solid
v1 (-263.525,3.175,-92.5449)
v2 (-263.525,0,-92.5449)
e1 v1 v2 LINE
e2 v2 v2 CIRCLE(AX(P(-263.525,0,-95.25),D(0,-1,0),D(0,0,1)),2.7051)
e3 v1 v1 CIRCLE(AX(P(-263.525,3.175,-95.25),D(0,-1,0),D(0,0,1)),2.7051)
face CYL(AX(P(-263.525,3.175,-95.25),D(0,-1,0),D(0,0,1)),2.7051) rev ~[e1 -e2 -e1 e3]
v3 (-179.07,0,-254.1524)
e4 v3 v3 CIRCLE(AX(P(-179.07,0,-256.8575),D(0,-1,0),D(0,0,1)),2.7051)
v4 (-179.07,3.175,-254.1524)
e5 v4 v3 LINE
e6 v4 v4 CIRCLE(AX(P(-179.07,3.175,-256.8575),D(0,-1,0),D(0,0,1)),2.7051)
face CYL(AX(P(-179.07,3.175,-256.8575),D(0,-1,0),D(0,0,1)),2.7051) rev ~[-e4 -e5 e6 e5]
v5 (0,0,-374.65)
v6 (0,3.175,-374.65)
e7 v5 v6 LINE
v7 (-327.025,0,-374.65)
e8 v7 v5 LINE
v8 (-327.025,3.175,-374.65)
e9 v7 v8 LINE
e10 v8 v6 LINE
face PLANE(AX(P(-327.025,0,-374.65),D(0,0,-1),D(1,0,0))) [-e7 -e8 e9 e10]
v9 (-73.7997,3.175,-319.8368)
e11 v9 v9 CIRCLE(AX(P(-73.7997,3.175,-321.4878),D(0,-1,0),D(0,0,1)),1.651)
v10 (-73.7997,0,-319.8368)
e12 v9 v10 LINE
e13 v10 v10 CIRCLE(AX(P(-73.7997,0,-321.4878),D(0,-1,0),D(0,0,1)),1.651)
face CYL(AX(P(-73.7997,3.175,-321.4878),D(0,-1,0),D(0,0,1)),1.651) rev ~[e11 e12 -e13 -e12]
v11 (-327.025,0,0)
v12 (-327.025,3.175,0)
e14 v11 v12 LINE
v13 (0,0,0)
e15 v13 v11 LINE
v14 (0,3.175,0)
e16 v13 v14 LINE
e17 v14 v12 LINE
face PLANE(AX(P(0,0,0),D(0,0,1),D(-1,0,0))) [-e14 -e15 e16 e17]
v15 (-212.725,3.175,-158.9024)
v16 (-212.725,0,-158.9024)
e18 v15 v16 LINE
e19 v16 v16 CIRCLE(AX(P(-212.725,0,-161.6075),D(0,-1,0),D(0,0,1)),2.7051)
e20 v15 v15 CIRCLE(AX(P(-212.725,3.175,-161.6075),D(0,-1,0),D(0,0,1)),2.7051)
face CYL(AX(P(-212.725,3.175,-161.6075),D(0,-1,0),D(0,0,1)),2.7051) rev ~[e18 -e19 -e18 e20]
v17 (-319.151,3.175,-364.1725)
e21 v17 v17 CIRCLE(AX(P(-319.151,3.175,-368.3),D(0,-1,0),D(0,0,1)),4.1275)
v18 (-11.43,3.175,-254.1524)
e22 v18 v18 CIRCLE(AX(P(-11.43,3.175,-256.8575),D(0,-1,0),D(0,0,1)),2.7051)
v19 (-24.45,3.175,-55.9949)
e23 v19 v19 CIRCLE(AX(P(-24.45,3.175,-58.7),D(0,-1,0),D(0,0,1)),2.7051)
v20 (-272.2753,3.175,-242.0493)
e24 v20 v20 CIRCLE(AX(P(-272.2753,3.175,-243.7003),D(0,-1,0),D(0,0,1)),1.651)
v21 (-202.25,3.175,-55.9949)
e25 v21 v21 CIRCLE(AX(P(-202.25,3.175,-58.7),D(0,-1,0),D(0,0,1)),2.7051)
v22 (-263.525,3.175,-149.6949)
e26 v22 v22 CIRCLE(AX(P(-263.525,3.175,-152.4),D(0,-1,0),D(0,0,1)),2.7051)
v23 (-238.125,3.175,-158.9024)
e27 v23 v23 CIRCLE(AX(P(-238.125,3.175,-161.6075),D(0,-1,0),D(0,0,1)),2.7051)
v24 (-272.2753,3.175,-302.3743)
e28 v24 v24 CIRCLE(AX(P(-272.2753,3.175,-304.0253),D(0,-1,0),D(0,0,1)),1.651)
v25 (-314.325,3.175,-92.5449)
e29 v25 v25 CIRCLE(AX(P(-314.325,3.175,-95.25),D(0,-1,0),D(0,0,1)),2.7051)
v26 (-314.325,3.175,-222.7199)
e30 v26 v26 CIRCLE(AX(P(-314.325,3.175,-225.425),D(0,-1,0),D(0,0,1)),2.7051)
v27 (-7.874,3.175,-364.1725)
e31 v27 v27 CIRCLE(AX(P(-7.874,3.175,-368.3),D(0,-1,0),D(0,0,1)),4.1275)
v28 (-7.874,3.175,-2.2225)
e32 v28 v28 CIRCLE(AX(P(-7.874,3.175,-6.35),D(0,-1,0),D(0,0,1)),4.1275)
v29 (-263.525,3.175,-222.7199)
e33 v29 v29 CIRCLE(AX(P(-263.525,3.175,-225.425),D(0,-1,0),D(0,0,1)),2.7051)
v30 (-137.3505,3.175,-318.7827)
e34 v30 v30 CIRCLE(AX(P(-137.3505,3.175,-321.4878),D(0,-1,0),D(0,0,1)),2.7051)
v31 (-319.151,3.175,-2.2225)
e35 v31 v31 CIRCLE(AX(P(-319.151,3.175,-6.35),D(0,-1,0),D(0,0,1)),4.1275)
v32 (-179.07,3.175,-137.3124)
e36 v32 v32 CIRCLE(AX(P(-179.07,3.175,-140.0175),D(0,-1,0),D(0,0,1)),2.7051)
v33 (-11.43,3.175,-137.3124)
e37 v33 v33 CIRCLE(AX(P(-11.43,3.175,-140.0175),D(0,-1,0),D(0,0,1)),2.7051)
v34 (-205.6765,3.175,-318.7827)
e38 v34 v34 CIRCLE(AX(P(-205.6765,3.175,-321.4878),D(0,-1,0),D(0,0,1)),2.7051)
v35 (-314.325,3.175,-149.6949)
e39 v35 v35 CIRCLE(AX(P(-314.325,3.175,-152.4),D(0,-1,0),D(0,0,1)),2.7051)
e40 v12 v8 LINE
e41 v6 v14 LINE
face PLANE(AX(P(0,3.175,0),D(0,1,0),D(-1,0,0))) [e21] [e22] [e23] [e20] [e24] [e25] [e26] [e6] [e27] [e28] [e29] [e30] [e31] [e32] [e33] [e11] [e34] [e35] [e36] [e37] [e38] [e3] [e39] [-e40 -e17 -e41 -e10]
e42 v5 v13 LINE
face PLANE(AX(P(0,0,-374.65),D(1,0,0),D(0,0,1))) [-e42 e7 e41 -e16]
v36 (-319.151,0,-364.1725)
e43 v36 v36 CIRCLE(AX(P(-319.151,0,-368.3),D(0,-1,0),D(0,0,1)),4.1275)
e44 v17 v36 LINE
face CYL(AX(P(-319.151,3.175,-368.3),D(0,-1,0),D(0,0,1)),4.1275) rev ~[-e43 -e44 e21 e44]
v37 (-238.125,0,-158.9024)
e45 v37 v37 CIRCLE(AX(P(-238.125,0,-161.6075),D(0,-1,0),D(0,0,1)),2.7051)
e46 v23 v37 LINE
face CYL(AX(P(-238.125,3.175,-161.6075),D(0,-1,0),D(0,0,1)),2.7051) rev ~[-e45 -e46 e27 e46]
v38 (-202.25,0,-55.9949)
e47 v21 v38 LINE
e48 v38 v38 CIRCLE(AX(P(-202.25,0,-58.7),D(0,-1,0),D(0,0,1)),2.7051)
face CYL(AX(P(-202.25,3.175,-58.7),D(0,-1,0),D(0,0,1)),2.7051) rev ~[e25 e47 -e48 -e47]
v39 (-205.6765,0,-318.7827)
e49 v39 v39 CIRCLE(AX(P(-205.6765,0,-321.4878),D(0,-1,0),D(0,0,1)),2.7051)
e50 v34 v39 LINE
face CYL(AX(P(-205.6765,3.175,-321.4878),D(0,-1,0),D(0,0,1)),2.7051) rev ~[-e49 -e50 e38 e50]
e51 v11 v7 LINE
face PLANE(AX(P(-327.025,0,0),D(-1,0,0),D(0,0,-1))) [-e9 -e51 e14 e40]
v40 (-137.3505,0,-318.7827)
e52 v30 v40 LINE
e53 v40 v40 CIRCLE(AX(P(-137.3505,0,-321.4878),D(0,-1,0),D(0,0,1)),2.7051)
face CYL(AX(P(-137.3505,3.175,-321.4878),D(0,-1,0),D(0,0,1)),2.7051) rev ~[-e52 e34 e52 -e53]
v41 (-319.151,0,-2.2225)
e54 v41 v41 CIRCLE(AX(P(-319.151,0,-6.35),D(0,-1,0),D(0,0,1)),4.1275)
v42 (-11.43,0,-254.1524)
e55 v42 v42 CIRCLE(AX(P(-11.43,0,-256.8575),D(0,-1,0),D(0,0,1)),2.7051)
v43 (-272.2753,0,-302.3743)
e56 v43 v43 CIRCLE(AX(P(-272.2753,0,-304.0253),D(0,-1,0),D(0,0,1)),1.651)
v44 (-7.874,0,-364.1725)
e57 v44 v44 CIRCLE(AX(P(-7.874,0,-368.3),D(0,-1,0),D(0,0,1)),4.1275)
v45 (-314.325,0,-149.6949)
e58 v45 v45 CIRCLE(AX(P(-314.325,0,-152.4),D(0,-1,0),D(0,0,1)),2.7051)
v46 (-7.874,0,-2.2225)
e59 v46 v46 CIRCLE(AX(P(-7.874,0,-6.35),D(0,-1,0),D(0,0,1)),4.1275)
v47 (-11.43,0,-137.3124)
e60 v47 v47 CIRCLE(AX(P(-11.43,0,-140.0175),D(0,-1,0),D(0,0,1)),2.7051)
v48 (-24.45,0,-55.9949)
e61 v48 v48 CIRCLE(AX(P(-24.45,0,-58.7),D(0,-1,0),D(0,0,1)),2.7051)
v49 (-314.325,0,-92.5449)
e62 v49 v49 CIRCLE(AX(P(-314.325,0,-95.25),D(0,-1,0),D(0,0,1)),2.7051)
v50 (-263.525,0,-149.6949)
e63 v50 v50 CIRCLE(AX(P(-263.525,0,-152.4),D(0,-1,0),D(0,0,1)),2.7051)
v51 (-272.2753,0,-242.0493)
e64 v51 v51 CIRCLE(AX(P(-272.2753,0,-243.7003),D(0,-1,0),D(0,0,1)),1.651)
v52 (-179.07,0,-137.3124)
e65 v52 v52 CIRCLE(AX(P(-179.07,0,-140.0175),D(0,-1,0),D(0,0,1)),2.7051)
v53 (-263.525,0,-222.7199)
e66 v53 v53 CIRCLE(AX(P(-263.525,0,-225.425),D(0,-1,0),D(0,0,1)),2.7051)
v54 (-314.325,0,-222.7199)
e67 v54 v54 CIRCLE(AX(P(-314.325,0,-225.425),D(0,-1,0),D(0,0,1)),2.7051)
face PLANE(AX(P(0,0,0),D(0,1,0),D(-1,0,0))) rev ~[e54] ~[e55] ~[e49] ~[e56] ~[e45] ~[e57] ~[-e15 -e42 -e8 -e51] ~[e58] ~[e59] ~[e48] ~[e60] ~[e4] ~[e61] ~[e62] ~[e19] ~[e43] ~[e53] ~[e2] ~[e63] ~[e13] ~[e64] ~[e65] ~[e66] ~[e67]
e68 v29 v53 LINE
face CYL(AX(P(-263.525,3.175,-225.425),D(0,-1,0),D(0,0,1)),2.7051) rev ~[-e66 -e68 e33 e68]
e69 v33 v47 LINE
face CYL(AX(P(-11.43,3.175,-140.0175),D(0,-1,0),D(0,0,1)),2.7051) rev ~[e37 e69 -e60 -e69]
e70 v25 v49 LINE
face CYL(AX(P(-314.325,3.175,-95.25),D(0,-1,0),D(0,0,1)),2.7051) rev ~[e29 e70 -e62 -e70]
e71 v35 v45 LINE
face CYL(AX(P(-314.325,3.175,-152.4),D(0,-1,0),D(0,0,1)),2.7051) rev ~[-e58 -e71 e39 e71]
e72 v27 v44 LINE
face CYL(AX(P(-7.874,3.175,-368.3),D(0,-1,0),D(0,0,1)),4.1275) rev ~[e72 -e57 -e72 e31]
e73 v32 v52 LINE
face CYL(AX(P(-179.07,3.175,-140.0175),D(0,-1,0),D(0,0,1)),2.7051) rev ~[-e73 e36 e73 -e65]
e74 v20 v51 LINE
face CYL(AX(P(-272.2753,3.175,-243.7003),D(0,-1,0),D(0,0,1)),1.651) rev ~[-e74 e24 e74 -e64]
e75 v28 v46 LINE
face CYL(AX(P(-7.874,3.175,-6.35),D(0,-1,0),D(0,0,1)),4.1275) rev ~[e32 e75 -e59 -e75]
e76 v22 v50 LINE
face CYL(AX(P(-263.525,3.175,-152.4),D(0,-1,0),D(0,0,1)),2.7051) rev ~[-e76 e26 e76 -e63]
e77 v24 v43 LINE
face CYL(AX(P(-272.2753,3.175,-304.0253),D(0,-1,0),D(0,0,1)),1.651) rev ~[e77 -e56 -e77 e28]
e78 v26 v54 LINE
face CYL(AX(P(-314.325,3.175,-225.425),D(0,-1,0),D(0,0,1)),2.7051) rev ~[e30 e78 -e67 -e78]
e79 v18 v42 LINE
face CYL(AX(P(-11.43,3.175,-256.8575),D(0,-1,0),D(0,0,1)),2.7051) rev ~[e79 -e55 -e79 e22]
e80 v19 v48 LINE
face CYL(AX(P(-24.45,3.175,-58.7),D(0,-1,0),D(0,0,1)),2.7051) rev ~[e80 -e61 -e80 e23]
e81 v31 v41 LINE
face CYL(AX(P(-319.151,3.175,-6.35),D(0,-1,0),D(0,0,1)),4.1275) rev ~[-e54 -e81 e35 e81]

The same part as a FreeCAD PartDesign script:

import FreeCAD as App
import Part
import Sketcher
Q = App.Units.Quantity

doc = App.newDocument("Part")
body = doc.addObject("PartDesign::Body", "Body")

# Sketch on XZ plane
sketch1 = body.newObject("Sketcher::SketchObject", "Sketch")
sketch1.AttachmentSupport = (doc.getObject("XZ_Plane"), [""])
sketch1.MapMode = "FlatFace"
sketch1.addGeometry(Part.LineSegment(App.Vector(-327, 0, 0), App.Vector(0, 0, 0)), False)
sketch1.addGeometry(Part.LineSegment(App.Vector(0, 0, 0), App.Vector(0, -375, 0)), False)
sketch1.addGeometry(Part.LineSegment(App.Vector(0, -375, 0), App.Vector(-327, -375, 0)), False)
sketch1.addGeometry(Part.LineSegment(App.Vector(-327, -375, 0), App.Vector(-327, 0, 0)), False)
sketch1.addConstraint(Sketcher.Constraint("Coincident", 0, 2, 1, 1))
sketch1.addConstraint(Sketcher.Constraint("Coincident", 1, 2, 2, 1))
sketch1.addConstraint(Sketcher.Constraint("Coincident", 2, 2, 3, 1))
sketch1.addConstraint(Sketcher.Constraint("Coincident", 3, 2, 0, 1))
sketch1.addConstraint(Sketcher.Constraint("Horizontal", 0))
sketch1.addConstraint(Sketcher.Constraint("Vertical", 1))
sketch1.addConstraint(Sketcher.Constraint("Horizontal", 2))
sketch1.addConstraint(Sketcher.Constraint("Vertical", 3))
sketch1.addConstraint(Sketcher.Constraint("Coincident", 0, 2, -1, 1))
sketch1.addConstraint(Sketcher.Constraint("DistanceY", 1, 2, 1, 1, Q("14.75 in")))
sketch1.addConstraint(Sketcher.Constraint("DistanceX", 0, 1, 0, 2, Q("12.875 in")))
pad1 = body.newObject("PartDesign::Pad", "Pad")
pad1.Profile = sketch1
pad1.Length = Q("0.125 in")
pad1.Reversed = True

# Sketch on XZ plane
sketch2 = body.newObject("Sketcher::SketchObject", "Sketch001")
sketch2.AttachmentSupport = (doc.getObject("XZ_Plane"), [""])
sketch2.MapMode = "FlatFace"
sketch2.AttachmentOffset = App.Placement(App.Vector(0, 0, -0.125 * 25.4), App.Rotation())
sketch2.addGeometry(Part.Circle(App.Vector(-179.1, -256.9, 0), App.Vector(0, 0, 1), 2.7), False)
sketch2.addGeometry(Part.Circle(App.Vector(-11.4, -256.9, 0), App.Vector(0, 0, 1), 2.7), False)
sketch2.addGeometry(Part.Circle(App.Vector(-11.4, -140, 0), App.Vector(0, 0, 1), 2.7), False)
sketch2.addGeometry(Part.Circle(App.Vector(-179.1, -140, 0), App.Vector(0, 0, 1), 2.7), False)
sketch2.addConstraint(Sketcher.Constraint("Equal", 0, 1))
sketch2.addConstraint(Sketcher.Constraint("Equal", 1, 2))
sketch2.addConstraint(Sketcher.Constraint("Equal", 2, 3))
sketch2.addConstraint(Sketcher.Constraint("Horizontal", 0, 3, 1, 3))
sketch2.addConstraint(Sketcher.Constraint("Horizontal", 2, 3, 3, 3))
sketch2.addConstraint(Sketcher.Constraint("Vertical", 1, 3, 2, 3))
sketch2.addConstraint(Sketcher.Constraint("Vertical", 0, 3, 3, 3))
sketch2.addConstraint(Sketcher.Constraint("Diameter", 0, Q("0.213 in")))
sketch2.addConstraint(Sketcher.Constraint("DistanceX", 0, 3, 1, 3, Q("6.6 in")))
sketch2.addConstraint(Sketcher.Constraint("DistanceY", 1, 3, 2, 3, Q("4.6 in")))
sketch2.addConstraint(Sketcher.Constraint("DistanceX", 0, 3, -1, 1, Q("7.05 in")))
sketch2.addConstraint(Sketcher.Constraint("DistanceY", 0, 3, -1, 1, Q("10.1125 in")))
doc.recompute()
hole = body.newObject("PartDesign::Hole", "Hole")
hole.Profile = sketch2
hole.ThreadType = "None"
hole.Diameter = Q("0.213 in")
hole.DepthType = "ThroughAll"
hole.Reversed = True

# Sketch on XZ plane
sketch3 = body.newObject("Sketcher::SketchObject", "Sketch002")
sketch3.AttachmentSupport = (doc.getObject("XZ_Plane"), [""])
sketch3.MapMode = "FlatFace"
sketch3.AttachmentOffset = App.Placement(App.Vector(0, 0, -0.125 * 25.4), App.Rotation())
sketch3.addGeometry(Part.Circle(App.Vector(-205.7, -321.5, 0), App.Vector(0, 0, 1), 2.7), False)
sketch3.addGeometry(Part.Circle(App.Vector(-137.4, -321.5, 0), App.Vector(0, 0, 1), 2.7), False)
sketch3.addConstraint(Sketcher.Constraint("Equal", 0, 1))
sketch3.addConstraint(Sketcher.Constraint("Horizontal", 0, 3, 1, 3))
sketch3.addConstraint(Sketcher.Constraint("Diameter", 0, Q("0.213 in")))
sketch3.addConstraint(Sketcher.Constraint("DistanceX", 0, 3, 1, 3, Q("2.69 in")))
sketch3.addConstraint(Sketcher.Constraint("DistanceY", 0, 3, -1, 1, Q("12.657 in")))
sketch3.addConstraint(Sketcher.Constraint("DistanceX", 0, 3, -1, 1, Q("8.0975 in")))
doc.recompute()
hole2 = body.newObject("PartDesign::Hole", "Hole001")
hole2.Profile = sketch3
hole2.ThreadType = "None"
hole2.Diameter = Q("0.213 in")
hole2.DepthType = "ThroughAll"
hole2.Reversed = True

# Sketch on XZ plane
sketch4 = body.newObject("Sketcher::SketchObject", "Sketch003")
sketch4.AttachmentSupport = (doc.getObject("XZ_Plane"), [""])
sketch4.MapMode = "FlatFace"
sketch4.AttachmentOffset = App.Placement(App.Vector(0, 0, -0.125 * 25.4), App.Rotation())
sketch4.addGeometry(Part.Circle(App.Vector(-319.2, -6.3, 0), App.Vector(0, 0, 1), 4.1), False)
sketch4.addGeometry(Part.Circle(App.Vector(-7.9, -6.3, 0), App.Vector(0, 0, 1), 4.1), False)
sketch4.addGeometry(Part.Circle(App.Vector(-7.9, -368.3, 0), App.Vector(0, 0, 1), 4.1), False)
sketch4.addGeometry(Part.Circle(App.Vector(-319.2, -368.3, 0), App.Vector(0, 0, 1), 4.1), False)
sketch4.addConstraint(Sketcher.Constraint("Equal", 0, 1))
sketch4.addConstraint(Sketcher.Constraint("Equal", 1, 2))
sketch4.addConstraint(Sketcher.Constraint("Equal", 2, 3))
sketch4.addConstraint(Sketcher.Constraint("Horizontal", 0, 3, 1, 3))
sketch4.addConstraint(Sketcher.Constraint("Horizontal", 2, 3, 3, 3))
sketch4.addConstraint(Sketcher.Constraint("Vertical", 1, 3, 2, 3))
sketch4.addConstraint(Sketcher.Constraint("Vertical", 0, 3, 3, 3))
sketch4.addConstraint(Sketcher.Constraint("Diameter", 0, Q("0.325 in")))
sketch4.addConstraint(Sketcher.Constraint("DistanceY", 2, 3, -1, 1, Q("14.5 in")))
sketch4.addConstraint(Sketcher.Constraint("DistanceY", 0, 3, -1, 1, Q("0.25 in")))
sketch4.addConstraint(Sketcher.Constraint("DistanceX", 1, 3, -1, 1, Q("0.31 in")))
sketch4.addConstraint(Sketcher.Constraint("DistanceX", 0, 3, -1, 1, Q("12.565 in")))
doc.recompute()
hole3 = body.newObject("PartDesign::Hole", "Hole002")
hole3.Profile = sketch4
hole3.ThreadType = "None"
hole3.Diameter = Q("0.325 in")
hole3.DepthType = "ThroughAll"
hole3.Reversed = True

# Sketch on XZ plane
sketch5 = body.newObject("Sketcher::SketchObject", "Sketch004")
sketch5.AttachmentSupport = (doc.getObject("XZ_Plane"), [""])
sketch5.MapMode = "FlatFace"
sketch5.AttachmentOffset = App.Placement(App.Vector(0, 0, -0.125 * 25.4), App.Rotation())
sketch5.addGeometry(Part.Circle(App.Vector(-202.2, -58.7, 0), App.Vector(0, 0, 1), 2.7), False)
sketch5.addGeometry(Part.Circle(App.Vector(-24.4, -58.7, 0), App.Vector(0, 0, 1), 2.7), False)
sketch5.addConstraint(Sketcher.Constraint("Equal", 0, 1))
sketch5.addConstraint(Sketcher.Constraint("Horizontal", 0, 3, 1, 3))
sketch5.addConstraint(Sketcher.Constraint("Diameter", 0, Q("0.213 in")))
sketch5.addConstraint(Sketcher.Constraint("DistanceX", 0, 3, 1, 3, Q("7 in")))
sketch5.addConstraint(Sketcher.Constraint("DistanceX", 0, 3, -1, 1, Q("7.9626 in")))
sketch5.addConstraint(Sketcher.Constraint("DistanceY", 0, 3, -1, 1, Q("58.7 mm")))
doc.recompute()
hole4 = body.newObject("PartDesign::Hole", "Hole003")
hole4.Profile = sketch5
hole4.ThreadType = "None"
hole4.Diameter = Q("0.213 in")
hole4.DepthType = "ThroughAll"
hole4.Reversed = True

# Sketch on XZ plane
sketch6 = body.newObject("Sketcher::SketchObject", "Sketch005")
sketch6.AttachmentSupport = (doc.getObject("XZ_Plane"), [""])
sketch6.MapMode = "FlatFace"
sketch6.AttachmentOffset = App.Placement(App.Vector(0, 0, -0.125 * 25.4), App.Rotation())
sketch6.addGeometry(Part.Circle(App.Vector(-272.3, -243.7, 0), App.Vector(0, 0, 1), 1.7), False)
sketch6.addGeometry(Part.Circle(App.Vector(-272.3, -304, 0), App.Vector(0, 0, 1), 1.7), False)
sketch6.addGeometry(Part.Circle(App.Vector(-73.8, -321.5, 0), App.Vector(0, 0, 1), 1.7), False)
sketch6.addConstraint(Sketcher.Constraint("Equal", 0, 1))
sketch6.addConstraint(Sketcher.Constraint("Equal", 1, 2))
sketch6.addConstraint(Sketcher.Constraint("Vertical", 0, 3, 1, 3))
sketch6.addConstraint(Sketcher.Constraint("Diameter", 0, Q("0.13 in")))
sketch6.addConstraint(Sketcher.Constraint("DistanceY", 2, 3, -1, 1, Q("12.657 in")))
sketch6.addConstraint(Sketcher.Constraint("DistanceY", 1, 3, 0, 3, Q("2.375 in")))
sketch6.addConstraint(Sketcher.Constraint("DistanceX", 1, 3, 2, 3, Q("7.814 in")))
sketch6.addConstraint(Sketcher.Constraint("DistanceY", 2, 3, 1, 3, Q("0.6875 in")))
sketch6.addConstraint(Sketcher.Constraint("DistanceX", 0, 3, -1, 1, Q("10.7195 in")))
doc.recompute()
hole5 = body.newObject("PartDesign::Hole", "Hole004")
hole5.Profile = sketch6
hole5.ThreadType = "None"
hole5.Diameter = Q("0.13 in")
hole5.DepthType = "ThroughAll"
hole5.Reversed = True

# Sketch on XZ plane
sketch7 = body.newObject("Sketcher::SketchObject", "Sketch006")
sketch7.AttachmentSupport = (doc.getObject("XZ_Plane"), [""])
sketch7.MapMode = "FlatFace"
sketch7.AttachmentOffset = App.Placement(App.Vector(0, 0, -0.125 * 25.4), App.Rotation())
sketch7.addGeometry(Part.Circle(App.Vector(-314.3, -95.2, 0), App.Vector(0, 0, 1), 2.7), False)
sketch7.addGeometry(Part.Circle(App.Vector(-263.5, -95.2, 0), App.Vector(0, 0, 1), 2.7), False)
sketch7.addGeometry(Part.Circle(App.Vector(-263.5, -152.4, 0), App.Vector(0, 0, 1), 2.7), False)
sketch7.addGeometry(Part.Circle(App.Vector(-314.3, -152.4, 0), App.Vector(0, 0, 1), 2.7), False)
sketch7.addGeometry(Part.Circle(App.Vector(-314.3, -225.4, 0), App.Vector(0, 0, 1), 2.7), False)
sketch7.addGeometry(Part.Circle(App.Vector(-263.5, -225.4, 0), App.Vector(0, 0, 1), 2.7), False)
sketch7.addConstraint(Sketcher.Constraint("Equal", 0, 1))
sketch7.addConstraint(Sketcher.Constraint("Equal", 1, 2))
sketch7.addConstraint(Sketcher.Constraint("Equal", 2, 3))
sketch7.addConstraint(Sketcher.Constraint("Equal", 3, 4))
sketch7.addConstraint(Sketcher.Constraint("Equal", 4, 5))
sketch7.addConstraint(Sketcher.Constraint("Horizontal", 0, 3, 1, 3))
sketch7.addConstraint(Sketcher.Constraint("Horizontal", 2, 3, 3, 3))
sketch7.addConstraint(Sketcher.Constraint("Horizontal", 4, 3, 5, 3))
sketch7.addConstraint(Sketcher.Constraint("Vertical", 1, 3, 2, 3))
sketch7.addConstraint(Sketcher.Constraint("Vertical", 0, 3, 3, 3))
sketch7.addConstraint(Sketcher.Constraint("Vertical", 3, 3, 4, 3))
sketch7.addConstraint(Sketcher.Constraint("Vertical", 2, 3, 5, 3))
sketch7.addConstraint(Sketcher.Constraint("Diameter", 0, Q("0.213 in")))
sketch7.addConstraint(Sketcher.Constraint("DistanceY", 2, 3, -1, 1, Q("6 in")))
sketch7.addConstraint(Sketcher.Constraint("DistanceX", 0, 3, 1, 3, Q("2 in")))
sketch7.addConstraint(Sketcher.Constraint("DistanceY", 0, 3, -1, 1, Q("3.75 in")))
sketch7.addConstraint(Sketcher.Constraint("DistanceX", 0, 3, -1, 1, Q("12.375 in")))
sketch7.addConstraint(Sketcher.Constraint("DistanceY", 4, 3, -1, 1, Q("8.875 in")))
doc.recompute()
hole6 = body.newObject("PartDesign::Hole", "Hole005")
hole6.Profile = sketch7
hole6.ThreadType = "None"
hole6.Diameter = Q("0.213 in")
hole6.DepthType = "ThroughAll"
hole6.Reversed = True

# Sketch on XZ plane
sketch8 = body.newObject("Sketcher::SketchObject", "Sketch007")
sketch8.AttachmentSupport = (doc.getObject("XZ_Plane"), [""])
sketch8.MapMode = "FlatFace"
sketch8.AttachmentOffset = App.Placement(App.Vector(0, 0, -0.125 * 25.4), App.Rotation())
sketch8.addGeometry(Part.Circle(App.Vector(-238.1, -161.6, 0), App.Vector(0, 0, 1), 2.7), False)
sketch8.addGeometry(Part.Circle(App.Vector(-212.7, -161.6, 0), App.Vector(0, 0, 1), 2.7), False)
sketch8.addConstraint(Sketcher.Constraint("Equal", 0, 1))
sketch8.addConstraint(Sketcher.Constraint("Horizontal", 0, 3, 1, 3))
sketch8.addConstraint(Sketcher.Constraint("Diameter", 0, Q("0.213 in")))
sketch8.addConstraint(Sketcher.Constraint("DistanceX", 0, 3, 1, 3, Q("1 in")))
sketch8.addConstraint(Sketcher.Constraint("DistanceX", 0, 3, -1, 1, Q("9.375 in")))
sketch8.addConstraint(Sketcher.Constraint("DistanceY", 0, 3, -1, 1, Q("6.3625 in")))
doc.recompute()
hole7 = body.newObject("PartDesign::Hole", "Hole006")
hole7.Profile = sketch8
hole7.ThreadType = "None"
hole7.Diameter = Q("0.213 in")
hole7.DepthType = "ThroughAll"
hole7.Reversed = True

doc.recompute()
